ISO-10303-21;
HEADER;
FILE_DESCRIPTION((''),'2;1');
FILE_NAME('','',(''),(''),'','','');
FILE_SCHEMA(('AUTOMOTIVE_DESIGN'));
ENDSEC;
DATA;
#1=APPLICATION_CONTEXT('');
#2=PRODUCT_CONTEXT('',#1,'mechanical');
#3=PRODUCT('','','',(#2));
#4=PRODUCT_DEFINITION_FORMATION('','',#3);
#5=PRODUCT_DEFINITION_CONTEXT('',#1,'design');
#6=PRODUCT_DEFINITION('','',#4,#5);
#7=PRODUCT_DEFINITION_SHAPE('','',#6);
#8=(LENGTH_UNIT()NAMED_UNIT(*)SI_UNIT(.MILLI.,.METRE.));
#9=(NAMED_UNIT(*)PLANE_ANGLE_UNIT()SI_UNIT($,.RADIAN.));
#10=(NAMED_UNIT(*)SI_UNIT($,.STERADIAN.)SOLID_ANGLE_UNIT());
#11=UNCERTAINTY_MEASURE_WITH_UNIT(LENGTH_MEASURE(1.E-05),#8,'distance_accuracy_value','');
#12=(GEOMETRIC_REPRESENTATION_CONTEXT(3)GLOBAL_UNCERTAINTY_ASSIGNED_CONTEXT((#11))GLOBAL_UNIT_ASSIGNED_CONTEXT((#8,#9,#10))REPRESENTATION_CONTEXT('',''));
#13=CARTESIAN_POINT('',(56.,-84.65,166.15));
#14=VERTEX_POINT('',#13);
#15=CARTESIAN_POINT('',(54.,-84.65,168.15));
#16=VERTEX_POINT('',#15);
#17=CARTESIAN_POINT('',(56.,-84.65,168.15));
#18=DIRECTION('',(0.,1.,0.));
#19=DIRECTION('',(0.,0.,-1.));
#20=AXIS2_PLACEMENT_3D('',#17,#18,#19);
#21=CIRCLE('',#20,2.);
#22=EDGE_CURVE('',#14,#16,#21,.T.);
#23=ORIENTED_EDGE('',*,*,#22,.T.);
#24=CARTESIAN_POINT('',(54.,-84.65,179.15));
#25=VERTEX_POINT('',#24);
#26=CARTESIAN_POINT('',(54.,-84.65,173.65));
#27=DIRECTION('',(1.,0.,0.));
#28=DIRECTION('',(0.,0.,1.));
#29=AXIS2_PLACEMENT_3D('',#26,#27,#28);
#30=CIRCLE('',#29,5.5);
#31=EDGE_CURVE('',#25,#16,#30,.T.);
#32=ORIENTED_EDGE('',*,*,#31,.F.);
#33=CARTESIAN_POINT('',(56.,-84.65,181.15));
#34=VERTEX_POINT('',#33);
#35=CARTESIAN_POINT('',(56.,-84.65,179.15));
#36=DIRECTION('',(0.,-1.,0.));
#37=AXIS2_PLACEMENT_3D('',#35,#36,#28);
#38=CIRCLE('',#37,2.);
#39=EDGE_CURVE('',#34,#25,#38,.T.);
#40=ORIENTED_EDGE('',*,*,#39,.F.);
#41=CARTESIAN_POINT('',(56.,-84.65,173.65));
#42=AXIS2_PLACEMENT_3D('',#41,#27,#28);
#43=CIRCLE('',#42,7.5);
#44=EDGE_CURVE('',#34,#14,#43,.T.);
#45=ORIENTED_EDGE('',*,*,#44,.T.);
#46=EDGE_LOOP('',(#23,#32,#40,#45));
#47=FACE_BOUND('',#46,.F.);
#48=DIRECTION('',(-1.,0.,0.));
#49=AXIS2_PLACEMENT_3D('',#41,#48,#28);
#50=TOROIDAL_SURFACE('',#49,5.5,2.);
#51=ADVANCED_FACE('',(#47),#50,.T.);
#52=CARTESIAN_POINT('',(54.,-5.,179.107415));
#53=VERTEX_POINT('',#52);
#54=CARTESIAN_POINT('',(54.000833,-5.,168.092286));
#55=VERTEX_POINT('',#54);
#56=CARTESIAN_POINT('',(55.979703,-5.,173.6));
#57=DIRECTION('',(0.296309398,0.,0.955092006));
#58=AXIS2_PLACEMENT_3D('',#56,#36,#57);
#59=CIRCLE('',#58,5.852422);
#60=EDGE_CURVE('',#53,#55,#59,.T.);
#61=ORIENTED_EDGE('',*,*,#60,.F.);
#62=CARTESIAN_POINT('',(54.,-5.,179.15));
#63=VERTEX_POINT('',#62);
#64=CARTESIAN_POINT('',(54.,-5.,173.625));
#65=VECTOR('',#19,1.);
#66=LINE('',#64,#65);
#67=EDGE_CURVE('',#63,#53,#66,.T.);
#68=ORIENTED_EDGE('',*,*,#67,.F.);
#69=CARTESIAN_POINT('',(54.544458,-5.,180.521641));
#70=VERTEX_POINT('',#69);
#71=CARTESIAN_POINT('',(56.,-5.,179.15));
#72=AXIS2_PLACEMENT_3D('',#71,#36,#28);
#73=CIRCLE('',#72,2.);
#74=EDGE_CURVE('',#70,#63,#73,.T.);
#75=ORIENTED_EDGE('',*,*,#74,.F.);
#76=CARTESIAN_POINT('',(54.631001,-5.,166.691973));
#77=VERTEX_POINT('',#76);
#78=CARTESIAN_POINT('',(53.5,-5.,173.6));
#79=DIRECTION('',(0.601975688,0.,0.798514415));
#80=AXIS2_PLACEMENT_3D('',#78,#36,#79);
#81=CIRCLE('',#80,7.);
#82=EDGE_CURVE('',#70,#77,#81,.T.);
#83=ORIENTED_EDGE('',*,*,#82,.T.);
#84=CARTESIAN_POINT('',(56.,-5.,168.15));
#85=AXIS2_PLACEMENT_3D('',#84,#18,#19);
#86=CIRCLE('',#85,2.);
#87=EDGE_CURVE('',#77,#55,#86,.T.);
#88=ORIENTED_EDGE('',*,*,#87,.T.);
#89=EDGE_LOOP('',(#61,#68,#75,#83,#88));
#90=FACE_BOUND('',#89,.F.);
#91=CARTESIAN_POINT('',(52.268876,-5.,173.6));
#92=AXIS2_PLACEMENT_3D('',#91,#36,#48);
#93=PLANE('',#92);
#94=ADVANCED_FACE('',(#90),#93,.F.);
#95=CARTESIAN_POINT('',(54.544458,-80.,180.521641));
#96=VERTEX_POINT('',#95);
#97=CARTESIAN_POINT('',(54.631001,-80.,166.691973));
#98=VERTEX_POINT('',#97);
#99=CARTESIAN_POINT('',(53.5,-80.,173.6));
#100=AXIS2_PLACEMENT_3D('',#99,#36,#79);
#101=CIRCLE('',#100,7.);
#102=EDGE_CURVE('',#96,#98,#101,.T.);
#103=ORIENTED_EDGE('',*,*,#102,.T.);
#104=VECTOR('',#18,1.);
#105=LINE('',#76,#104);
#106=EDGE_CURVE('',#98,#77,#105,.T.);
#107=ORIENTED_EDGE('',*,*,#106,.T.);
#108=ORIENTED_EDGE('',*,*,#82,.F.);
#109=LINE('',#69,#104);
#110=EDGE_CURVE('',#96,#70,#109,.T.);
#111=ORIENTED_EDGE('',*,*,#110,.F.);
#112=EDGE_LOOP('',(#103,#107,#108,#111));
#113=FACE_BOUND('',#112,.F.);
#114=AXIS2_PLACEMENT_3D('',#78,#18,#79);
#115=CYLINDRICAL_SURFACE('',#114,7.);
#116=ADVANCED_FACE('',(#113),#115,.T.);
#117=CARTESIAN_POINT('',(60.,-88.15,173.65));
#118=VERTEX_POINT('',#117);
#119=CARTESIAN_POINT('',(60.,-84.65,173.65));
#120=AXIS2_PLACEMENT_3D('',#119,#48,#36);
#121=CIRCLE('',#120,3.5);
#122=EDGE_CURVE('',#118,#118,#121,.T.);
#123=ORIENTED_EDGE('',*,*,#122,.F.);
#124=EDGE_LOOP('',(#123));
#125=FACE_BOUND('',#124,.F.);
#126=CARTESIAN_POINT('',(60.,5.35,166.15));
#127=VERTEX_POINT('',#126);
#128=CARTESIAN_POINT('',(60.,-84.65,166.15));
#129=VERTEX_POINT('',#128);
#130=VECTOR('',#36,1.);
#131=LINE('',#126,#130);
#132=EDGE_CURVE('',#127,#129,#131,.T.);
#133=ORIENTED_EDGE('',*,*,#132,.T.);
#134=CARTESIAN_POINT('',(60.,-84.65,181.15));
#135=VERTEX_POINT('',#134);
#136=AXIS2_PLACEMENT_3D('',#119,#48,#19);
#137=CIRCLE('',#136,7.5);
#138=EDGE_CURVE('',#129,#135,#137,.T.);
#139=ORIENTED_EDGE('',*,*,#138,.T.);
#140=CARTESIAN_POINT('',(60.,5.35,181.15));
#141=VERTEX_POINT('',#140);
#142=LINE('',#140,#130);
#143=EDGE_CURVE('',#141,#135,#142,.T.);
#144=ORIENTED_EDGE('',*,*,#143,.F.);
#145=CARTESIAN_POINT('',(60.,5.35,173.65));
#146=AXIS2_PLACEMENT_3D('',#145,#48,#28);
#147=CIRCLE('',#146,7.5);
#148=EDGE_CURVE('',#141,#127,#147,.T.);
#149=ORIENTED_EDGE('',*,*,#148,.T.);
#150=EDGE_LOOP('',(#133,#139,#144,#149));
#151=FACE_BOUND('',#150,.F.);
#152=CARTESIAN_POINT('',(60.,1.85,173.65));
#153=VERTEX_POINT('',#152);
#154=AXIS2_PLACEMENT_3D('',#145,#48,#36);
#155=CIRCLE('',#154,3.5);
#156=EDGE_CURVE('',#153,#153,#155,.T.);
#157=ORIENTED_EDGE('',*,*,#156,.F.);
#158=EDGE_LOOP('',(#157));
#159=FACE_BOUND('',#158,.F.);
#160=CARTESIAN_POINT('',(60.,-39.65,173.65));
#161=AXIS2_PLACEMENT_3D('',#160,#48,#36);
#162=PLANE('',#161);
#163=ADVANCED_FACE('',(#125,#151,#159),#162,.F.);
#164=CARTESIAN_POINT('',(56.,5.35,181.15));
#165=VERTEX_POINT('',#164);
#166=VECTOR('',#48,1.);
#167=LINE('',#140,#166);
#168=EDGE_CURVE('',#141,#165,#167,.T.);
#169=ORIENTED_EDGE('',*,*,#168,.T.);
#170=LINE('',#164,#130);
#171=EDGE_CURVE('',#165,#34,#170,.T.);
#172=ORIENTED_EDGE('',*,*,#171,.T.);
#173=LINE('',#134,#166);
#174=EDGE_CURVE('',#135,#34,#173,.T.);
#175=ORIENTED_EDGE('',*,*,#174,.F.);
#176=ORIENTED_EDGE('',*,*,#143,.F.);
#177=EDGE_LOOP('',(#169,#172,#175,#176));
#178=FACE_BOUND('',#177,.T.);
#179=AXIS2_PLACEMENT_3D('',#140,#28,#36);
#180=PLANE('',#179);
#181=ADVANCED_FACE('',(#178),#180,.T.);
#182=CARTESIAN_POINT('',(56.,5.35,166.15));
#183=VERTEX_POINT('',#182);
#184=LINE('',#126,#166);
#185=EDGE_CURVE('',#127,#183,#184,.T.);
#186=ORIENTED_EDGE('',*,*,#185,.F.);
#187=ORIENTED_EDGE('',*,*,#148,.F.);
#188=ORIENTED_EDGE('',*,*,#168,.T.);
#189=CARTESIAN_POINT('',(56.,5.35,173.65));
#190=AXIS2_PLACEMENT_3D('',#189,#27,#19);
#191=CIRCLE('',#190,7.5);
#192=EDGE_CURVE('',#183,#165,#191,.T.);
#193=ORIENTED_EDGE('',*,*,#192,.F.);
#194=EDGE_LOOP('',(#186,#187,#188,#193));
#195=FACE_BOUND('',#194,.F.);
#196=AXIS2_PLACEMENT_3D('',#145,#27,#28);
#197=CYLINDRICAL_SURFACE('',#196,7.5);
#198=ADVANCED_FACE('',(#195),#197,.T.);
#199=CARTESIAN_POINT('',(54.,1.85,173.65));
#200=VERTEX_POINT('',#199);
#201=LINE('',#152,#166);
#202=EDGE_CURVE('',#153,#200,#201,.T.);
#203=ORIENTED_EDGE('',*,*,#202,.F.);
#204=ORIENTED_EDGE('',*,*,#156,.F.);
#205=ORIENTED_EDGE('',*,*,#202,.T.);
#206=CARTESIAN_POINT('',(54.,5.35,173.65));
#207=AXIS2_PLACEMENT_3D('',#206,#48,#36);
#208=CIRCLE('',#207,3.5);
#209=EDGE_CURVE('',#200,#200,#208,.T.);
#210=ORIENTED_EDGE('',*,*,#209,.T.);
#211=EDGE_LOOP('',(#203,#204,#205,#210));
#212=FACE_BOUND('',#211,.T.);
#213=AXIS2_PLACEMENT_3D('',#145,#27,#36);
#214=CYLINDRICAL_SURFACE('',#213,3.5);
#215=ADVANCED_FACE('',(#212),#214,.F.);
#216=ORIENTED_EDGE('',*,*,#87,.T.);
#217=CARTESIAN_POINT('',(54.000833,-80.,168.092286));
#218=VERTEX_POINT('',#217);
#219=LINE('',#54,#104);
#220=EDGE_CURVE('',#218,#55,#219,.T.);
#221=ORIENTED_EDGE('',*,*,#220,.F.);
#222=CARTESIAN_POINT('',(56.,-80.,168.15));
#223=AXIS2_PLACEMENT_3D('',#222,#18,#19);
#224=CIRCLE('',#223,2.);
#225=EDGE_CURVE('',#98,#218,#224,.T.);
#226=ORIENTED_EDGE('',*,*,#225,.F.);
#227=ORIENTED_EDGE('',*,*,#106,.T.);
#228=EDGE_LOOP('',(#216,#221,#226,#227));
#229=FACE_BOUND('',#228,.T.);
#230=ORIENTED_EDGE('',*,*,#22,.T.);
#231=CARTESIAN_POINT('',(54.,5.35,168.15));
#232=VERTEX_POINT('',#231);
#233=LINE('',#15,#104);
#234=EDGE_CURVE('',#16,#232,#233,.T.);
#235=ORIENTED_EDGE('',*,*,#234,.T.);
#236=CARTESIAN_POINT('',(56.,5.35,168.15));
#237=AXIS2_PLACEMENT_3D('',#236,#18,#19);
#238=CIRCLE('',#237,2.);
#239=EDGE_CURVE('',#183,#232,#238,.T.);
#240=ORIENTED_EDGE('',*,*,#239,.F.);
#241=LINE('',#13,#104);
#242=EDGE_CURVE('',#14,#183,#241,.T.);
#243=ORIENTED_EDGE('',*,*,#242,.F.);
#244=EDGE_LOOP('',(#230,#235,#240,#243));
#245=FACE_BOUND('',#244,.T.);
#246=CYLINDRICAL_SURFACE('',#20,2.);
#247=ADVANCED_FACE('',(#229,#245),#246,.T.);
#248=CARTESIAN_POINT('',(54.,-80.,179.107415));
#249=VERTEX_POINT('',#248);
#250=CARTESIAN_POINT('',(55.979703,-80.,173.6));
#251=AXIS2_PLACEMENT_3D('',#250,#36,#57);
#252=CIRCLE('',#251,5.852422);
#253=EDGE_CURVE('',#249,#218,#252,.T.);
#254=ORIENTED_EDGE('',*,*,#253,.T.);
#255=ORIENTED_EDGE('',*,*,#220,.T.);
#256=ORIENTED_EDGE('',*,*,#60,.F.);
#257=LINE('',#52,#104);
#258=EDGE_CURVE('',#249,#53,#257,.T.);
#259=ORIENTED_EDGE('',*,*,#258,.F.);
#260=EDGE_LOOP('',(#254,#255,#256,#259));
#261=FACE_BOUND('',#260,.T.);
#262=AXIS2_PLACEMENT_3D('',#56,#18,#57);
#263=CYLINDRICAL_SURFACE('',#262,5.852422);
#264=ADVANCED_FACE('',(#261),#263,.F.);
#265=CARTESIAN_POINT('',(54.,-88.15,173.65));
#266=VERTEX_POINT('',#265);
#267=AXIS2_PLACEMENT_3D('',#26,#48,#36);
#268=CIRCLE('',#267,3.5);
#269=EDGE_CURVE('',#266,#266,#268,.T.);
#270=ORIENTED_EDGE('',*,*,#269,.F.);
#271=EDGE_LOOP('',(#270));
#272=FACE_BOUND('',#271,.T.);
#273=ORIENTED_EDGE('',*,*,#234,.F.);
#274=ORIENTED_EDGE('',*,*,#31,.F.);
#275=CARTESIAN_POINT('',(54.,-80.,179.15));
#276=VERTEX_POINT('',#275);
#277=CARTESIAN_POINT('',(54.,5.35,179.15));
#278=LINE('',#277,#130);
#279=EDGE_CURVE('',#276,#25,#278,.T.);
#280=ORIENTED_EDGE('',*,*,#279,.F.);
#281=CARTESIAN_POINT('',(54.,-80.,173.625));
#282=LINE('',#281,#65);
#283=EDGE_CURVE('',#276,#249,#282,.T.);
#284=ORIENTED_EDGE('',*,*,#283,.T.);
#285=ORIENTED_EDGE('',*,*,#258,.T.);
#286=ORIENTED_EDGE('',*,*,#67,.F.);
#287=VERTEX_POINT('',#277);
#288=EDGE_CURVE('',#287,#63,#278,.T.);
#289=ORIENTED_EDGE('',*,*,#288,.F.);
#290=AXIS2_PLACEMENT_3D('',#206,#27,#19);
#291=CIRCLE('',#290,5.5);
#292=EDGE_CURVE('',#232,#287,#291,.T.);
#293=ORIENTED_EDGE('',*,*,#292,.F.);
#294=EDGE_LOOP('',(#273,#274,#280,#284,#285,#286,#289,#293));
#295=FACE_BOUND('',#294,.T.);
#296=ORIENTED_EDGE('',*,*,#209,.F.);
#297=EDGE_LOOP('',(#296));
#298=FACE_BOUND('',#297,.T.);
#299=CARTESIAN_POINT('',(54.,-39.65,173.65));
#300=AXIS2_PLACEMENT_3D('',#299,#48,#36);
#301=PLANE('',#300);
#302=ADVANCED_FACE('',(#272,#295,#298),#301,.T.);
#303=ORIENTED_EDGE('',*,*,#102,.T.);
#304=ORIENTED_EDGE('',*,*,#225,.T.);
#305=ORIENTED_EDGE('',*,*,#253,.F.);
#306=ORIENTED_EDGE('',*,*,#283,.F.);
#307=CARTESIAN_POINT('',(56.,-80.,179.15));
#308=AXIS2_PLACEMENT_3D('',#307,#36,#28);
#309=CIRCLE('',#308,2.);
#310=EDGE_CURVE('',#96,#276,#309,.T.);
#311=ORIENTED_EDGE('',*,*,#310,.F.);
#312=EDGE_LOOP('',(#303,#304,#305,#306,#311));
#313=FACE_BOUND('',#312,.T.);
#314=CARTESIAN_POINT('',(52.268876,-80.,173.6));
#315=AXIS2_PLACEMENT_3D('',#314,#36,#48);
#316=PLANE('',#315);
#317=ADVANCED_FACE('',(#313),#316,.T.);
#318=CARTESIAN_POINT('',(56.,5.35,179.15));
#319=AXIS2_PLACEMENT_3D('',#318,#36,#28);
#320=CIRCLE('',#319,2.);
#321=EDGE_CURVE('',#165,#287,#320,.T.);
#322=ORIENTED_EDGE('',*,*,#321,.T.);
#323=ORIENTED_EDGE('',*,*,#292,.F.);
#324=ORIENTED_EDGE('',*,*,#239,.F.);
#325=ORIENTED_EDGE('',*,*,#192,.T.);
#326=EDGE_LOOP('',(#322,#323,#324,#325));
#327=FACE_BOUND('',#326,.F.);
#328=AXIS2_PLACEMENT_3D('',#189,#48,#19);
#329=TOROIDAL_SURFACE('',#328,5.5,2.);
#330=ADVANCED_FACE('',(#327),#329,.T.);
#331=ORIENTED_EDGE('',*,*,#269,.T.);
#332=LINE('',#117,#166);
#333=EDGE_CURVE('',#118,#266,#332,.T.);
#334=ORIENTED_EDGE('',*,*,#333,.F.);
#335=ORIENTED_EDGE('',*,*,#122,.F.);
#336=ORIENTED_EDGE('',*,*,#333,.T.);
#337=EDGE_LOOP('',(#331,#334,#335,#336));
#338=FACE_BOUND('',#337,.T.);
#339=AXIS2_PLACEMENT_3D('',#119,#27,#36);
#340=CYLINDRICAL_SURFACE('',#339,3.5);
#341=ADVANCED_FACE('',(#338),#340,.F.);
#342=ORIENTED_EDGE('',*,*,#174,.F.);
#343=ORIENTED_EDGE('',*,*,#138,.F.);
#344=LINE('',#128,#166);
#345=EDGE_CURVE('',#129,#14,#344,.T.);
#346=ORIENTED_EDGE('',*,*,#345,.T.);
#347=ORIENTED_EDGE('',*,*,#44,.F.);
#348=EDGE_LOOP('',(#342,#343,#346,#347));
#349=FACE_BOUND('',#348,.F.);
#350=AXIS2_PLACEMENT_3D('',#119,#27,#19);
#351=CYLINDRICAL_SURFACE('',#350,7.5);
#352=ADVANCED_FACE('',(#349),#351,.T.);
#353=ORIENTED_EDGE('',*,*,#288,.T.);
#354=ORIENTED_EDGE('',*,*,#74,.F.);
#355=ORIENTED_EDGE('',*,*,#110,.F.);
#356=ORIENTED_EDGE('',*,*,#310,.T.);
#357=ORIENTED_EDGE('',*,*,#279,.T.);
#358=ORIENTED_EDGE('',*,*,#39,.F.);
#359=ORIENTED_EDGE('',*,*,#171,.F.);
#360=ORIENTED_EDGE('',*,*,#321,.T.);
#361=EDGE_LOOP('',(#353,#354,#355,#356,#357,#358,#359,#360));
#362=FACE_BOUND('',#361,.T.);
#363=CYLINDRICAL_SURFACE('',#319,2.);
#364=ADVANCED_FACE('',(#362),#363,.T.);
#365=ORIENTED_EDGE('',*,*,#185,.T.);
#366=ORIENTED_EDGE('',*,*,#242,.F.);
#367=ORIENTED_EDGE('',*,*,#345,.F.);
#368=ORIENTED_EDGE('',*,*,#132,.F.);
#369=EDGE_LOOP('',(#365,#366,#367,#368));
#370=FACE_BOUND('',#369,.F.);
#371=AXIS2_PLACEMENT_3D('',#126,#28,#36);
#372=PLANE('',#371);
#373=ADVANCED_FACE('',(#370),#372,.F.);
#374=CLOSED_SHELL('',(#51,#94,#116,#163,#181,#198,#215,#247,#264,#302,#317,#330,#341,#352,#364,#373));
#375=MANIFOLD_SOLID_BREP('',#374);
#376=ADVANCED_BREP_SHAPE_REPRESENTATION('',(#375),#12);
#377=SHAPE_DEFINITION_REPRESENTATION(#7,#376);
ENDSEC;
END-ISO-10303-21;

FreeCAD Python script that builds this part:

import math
import FreeCAD as App
import Part
import Sketcher
from FreeCAD import Vector


def edges_at(feature, points):
    """Names of the edges that pass closest to the given points."""
    edges = feature.Shape.Edges
    near = lambda p: min(range(len(edges)), key=lambda i: edges[i].distToShape(Part.Vertex(*p))[0])
    return sorted({f"Edge{near(p) + 1}" for p in points})

doc = App.newDocument("Part")
params = doc.addObject("Spreadsheet::Sheet", "Params")
for row, (alias, value) in enumerate([
    ("sketch1_diameter", "7 mm"),
    ("sketch1_radius", "7.5 mm"),
    ("sketch1_width", "90 mm"),
    ("pad1_length", "6 mm"),
    ("fillet_radius", "2 mm"),
    ("sketch2_radius", "7 mm"),
    ("pad2_length", "75 mm"),
], start=1):
    params.set(f"A{row}", alias)
    params.set(f"B{row}", "=" + value)
    params.setAlias(f"B{row}", alias)

body = doc.addObject("PartDesign::Body", "Body")

# Sketch on YZ plane
sketch1 = body.newObject("Sketcher::SketchObject", "Sketch")
sketch1.AttachmentSupport = (doc.getObject("YZ_Plane"), [""])
sketch1.MapMode = "FlatFace"
sketch1.addGeometry(Part.ArcOfCircle(Part.Circle(Vector(0, 0, 0), Vector(0, 0, 1), 7.5), math.radians(-90), math.radians(90)), False)
sketch1.addGeometry(Part.LineSegment(Vector(0, -7.5, 0), Vector(-90, -7.5, 0)), False)
sketch1.addGeometry(Part.ArcOfCircle(Part.Circle(Vector(-90, 0, 0), Vector(0, 0, 1), 7.5), math.radians(90), math.radians(270)), False)
sketch1.addGeometry(Part.LineSegment(Vector(-90, 7.5, 0), Vector(0, 7.5, 0)), False)
sketch1.addGeometry(Part.Circle(Vector(0, 0, 0), Vector(0, 0, 1), 3.5), False)
sketch1.addGeometry(Part.Circle(Vector(-90, 0, 0), Vector(0, 0, 1), 3.5), False)
sketch1.addConstraint(Sketcher.Constraint("Tangent", 0, 1, 1, 1))
sketch1.addConstraint(Sketcher.Constraint("Tangent", 1, 2, 2, 2))
sketch1.addConstraint(Sketcher.Constraint("Tangent", 2, 1, 3, 1))
sketch1.addConstraint(Sketcher.Constraint("Tangent", 3, 2, 0, 2))
sketch1.addConstraint(Sketcher.Constraint("Horizontal", 1))
sketch1.addConstraint(Sketcher.Constraint("Horizontal", 3))
sketch1.addConstraint(Sketcher.Constraint("Coincident", 0, 3, -1, 1))
sketch1.addConstraint(Sketcher.Constraint("Coincident", 4, 3, -1, 1))
sketch1.addConstraint(Sketcher.Constraint("Coincident", 5, 3, 2, 3))
sketch1.addConstraint(Sketcher.Constraint("Equal", 4, 5))
sketch1.addConstraint(Sketcher.Constraint("Diameter", 4, 7.0))
sketch1.addConstraint(Sketcher.Constraint("Radius", 0, 7.5))
sketch1.addConstraint(Sketcher.Constraint("DistanceX", 1, 2, 1, 1, 90.0))
sketch1.setExpression("Constraints[10]", "Params.sketch1_diameter")
sketch1.setExpression("Constraints[11]", "Params.sketch1_radius")
sketch1.setExpression("Constraints[12]", "Params.sketch1_width")
pad1 = body.newObject("PartDesign::Pad", "Pad")
pad1.Profile = sketch1
pad1.setExpression("Length", "Params.pad1_length")
pad1.Reversed = True
body2 = doc.addObject("PartDesign::Body", "Body001")
doc.recompute()

body.Placement = App.Placement(Vector(60, 5.35, 173.65), App.Rotation(Vector(0, 0, 1), 0))
boolean = body2.newObject("PartDesign::Boolean", "Boolean")
boolean.Type = "Fuse"
boolean.addObjects([body])
doc.recompute()

fillet = body2.newObject("PartDesign::Fillet", "Fillet")
fillet.Base = (boolean, edges_at(boolean, [(54, -39.65, 181.15)]))
fillet.setExpression("Radius", "Params.fillet_radius")
body3 = doc.addObject("PartDesign::Body", "Body002")

# Sketch on XZ plane
sketch2 = body3.newObject("Sketcher::SketchObject", "Sketch001")
sketch2.AttachmentSupport = (doc.getObject("XZ_Plane002"), [""])
sketch2.MapMode = "FlatFace"
sketch2.addGeometry(Part.ArcOfCircle(Part.Circle(Vector(0, 0, 0), Vector(0, 0, 1), 7), math.radians(-127), math.radians(127)), False)
sketch2.addGeometry(Part.ArcOfCircle(Part.Circle(Vector(-2, 0, 0), Vector(0, 0, 1), 6), math.radians(-107), math.radians(107)), False)
sketch2.addConstraint(Sketcher.Constraint("Coincident", 0, 1, 1, 1))
sketch2.addConstraint(Sketcher.Constraint("Coincident", 1, 2, 0, 2))
sketch2.addConstraint(Sketcher.Constraint("Coincident", 0, 3, -1, 1))
sketch2.addConstraint(Sketcher.Constraint("PointOnObject", 1, 3, -1))
sketch2.addConstraint(Sketcher.Constraint("Radius", 0, 7.0))
sketch2.addConstraint(Sketcher.Constraint("Radius", 1, 5.852422))
sketch2.addConstraint(Sketcher.Constraint("DistanceY", 0, 1, -1, 1, 5.589601))
sketch2.setExpression("Constraints[4]", "Params.sketch2_radius")
pad2 = body3.newObject("PartDesign::Pad", "Pad001")
pad2.Profile = sketch2
pad2.setExpression("Length", "Params.pad2_length")
body4 = doc.addObject("PartDesign::Body", "Body003")
doc.recompute()

body3.Placement = App.Placement(Vector(53.5, -5, 173.6), App.Rotation(Vector(0, 1, 0), 180))
boolean2 = body4.newObject("PartDesign::Boolean", "Boolean001")
boolean2.Type = "Fuse"
boolean2.addObjects([body3])
doc.recompute()

boolean3 = body4.newObject("PartDesign::Boolean", "Boolean002")
boolean3.Type = "Fuse"
boolean3.addObjects([body2])

doc.recompute()
